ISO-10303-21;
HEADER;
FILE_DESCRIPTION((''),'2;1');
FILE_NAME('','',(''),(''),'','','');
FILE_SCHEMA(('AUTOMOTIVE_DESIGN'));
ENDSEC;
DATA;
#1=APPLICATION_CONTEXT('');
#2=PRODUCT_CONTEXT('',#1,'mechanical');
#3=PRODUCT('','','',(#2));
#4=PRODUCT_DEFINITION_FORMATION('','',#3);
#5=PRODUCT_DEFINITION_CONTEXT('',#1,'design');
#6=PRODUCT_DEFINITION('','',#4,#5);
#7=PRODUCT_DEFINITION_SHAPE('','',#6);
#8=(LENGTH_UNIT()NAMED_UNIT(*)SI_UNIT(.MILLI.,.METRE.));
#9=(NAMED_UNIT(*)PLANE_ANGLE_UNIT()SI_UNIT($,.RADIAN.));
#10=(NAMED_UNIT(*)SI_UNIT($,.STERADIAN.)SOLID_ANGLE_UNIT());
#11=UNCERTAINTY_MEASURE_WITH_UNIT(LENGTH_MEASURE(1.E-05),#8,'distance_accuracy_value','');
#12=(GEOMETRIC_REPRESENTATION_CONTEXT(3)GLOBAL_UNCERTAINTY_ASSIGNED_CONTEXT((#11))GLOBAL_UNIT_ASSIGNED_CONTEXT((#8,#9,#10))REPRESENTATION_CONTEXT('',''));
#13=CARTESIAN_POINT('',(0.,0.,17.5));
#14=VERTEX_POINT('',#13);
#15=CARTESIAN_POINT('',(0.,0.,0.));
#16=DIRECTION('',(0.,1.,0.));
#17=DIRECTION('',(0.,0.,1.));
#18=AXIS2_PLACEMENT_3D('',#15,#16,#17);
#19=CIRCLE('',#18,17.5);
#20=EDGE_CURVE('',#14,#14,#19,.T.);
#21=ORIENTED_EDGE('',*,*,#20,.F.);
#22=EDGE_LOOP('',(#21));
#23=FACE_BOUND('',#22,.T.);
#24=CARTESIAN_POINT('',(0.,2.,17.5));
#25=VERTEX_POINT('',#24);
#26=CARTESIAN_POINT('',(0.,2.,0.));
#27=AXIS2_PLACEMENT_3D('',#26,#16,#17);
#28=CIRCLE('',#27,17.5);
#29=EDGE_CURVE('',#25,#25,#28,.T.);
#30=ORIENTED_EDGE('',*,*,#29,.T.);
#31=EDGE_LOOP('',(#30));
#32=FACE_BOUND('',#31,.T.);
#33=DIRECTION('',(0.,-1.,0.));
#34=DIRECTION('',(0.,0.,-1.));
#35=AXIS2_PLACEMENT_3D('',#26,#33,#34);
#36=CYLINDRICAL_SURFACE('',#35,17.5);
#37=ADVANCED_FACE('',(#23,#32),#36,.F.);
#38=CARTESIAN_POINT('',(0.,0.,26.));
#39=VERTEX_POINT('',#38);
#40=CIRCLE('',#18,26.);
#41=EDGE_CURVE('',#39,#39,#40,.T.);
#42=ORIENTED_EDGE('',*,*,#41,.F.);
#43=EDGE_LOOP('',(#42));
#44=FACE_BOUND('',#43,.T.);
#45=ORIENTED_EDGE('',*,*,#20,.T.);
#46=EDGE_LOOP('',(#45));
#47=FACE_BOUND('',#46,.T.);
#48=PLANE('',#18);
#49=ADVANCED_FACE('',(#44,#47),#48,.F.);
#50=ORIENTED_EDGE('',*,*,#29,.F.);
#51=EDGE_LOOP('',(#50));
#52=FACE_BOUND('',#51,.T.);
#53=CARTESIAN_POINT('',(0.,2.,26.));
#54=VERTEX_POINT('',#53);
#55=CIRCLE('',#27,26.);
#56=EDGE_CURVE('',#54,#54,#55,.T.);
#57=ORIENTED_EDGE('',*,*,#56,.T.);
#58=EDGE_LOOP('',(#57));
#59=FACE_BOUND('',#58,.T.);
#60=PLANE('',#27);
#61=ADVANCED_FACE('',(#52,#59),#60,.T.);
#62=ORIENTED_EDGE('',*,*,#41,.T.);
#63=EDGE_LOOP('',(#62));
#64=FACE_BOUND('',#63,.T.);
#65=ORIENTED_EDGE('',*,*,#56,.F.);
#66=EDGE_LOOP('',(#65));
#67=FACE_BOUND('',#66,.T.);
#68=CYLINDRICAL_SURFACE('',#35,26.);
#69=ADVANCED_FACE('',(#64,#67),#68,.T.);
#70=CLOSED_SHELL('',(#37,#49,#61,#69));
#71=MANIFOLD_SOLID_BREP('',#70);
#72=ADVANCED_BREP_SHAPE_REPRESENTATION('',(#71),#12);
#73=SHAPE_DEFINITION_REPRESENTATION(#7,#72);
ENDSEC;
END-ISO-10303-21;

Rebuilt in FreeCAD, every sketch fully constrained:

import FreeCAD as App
import Part
import Sketcher
from FreeCAD import Vector

doc = App.newDocument("Part")
params = doc.addObject("Spreadsheet::Sheet", "Params")
for row, (alias, value) in enumerate([
    ("sketch1_diameter", "52 mm"),
    ("sketch1_diameter2", "35 mm"),
    ("pad1_length", "2 mm"),
], start=1):
    params.set(f"A{row}", alias)
    params.set(f"B{row}", "=" + value)
    params.setAlias(f"B{row}", alias)

body = doc.addObject("PartDesign::Body", "Body")

# Sketch on XZ plane
sketch1 = body.newObject("Sketcher::SketchObject", "Sketch")
sketch1.AttachmentSupport = (doc.getObject("XZ_Plane"), [""])
sketch1.MapMode = "FlatFace"
sketch1.addGeometry([
    Part.Circle(Vector(0, 0, 0), Vector(0, 0, 1), 26),
    Part.Circle(Vector(0, 0, 0), Vector(0, 0, 1), 18),
], False)
sketch1.addConstraint([
    Sketcher.Constraint("Coincident", 0, 3, -1, 1),
    Sketcher.Constraint("Coincident", 1, 3, -1, 1),
    Sketcher.Constraint("Diameter", 0, 52.0),
    Sketcher.Constraint("Diameter", 1, 35.0),
])
sketch1.setExpression("Constraints[2]", "Params.sketch1_diameter")
sketch1.setExpression("Constraints[3]", "Params.sketch1_diameter2")
pad1 = body.newObject("PartDesign::Pad", "Pad")
pad1.Profile = sketch1
pad1.setExpression("Length", "Params.pad1_length")
pad1.Reversed = True

doc.recompute()
